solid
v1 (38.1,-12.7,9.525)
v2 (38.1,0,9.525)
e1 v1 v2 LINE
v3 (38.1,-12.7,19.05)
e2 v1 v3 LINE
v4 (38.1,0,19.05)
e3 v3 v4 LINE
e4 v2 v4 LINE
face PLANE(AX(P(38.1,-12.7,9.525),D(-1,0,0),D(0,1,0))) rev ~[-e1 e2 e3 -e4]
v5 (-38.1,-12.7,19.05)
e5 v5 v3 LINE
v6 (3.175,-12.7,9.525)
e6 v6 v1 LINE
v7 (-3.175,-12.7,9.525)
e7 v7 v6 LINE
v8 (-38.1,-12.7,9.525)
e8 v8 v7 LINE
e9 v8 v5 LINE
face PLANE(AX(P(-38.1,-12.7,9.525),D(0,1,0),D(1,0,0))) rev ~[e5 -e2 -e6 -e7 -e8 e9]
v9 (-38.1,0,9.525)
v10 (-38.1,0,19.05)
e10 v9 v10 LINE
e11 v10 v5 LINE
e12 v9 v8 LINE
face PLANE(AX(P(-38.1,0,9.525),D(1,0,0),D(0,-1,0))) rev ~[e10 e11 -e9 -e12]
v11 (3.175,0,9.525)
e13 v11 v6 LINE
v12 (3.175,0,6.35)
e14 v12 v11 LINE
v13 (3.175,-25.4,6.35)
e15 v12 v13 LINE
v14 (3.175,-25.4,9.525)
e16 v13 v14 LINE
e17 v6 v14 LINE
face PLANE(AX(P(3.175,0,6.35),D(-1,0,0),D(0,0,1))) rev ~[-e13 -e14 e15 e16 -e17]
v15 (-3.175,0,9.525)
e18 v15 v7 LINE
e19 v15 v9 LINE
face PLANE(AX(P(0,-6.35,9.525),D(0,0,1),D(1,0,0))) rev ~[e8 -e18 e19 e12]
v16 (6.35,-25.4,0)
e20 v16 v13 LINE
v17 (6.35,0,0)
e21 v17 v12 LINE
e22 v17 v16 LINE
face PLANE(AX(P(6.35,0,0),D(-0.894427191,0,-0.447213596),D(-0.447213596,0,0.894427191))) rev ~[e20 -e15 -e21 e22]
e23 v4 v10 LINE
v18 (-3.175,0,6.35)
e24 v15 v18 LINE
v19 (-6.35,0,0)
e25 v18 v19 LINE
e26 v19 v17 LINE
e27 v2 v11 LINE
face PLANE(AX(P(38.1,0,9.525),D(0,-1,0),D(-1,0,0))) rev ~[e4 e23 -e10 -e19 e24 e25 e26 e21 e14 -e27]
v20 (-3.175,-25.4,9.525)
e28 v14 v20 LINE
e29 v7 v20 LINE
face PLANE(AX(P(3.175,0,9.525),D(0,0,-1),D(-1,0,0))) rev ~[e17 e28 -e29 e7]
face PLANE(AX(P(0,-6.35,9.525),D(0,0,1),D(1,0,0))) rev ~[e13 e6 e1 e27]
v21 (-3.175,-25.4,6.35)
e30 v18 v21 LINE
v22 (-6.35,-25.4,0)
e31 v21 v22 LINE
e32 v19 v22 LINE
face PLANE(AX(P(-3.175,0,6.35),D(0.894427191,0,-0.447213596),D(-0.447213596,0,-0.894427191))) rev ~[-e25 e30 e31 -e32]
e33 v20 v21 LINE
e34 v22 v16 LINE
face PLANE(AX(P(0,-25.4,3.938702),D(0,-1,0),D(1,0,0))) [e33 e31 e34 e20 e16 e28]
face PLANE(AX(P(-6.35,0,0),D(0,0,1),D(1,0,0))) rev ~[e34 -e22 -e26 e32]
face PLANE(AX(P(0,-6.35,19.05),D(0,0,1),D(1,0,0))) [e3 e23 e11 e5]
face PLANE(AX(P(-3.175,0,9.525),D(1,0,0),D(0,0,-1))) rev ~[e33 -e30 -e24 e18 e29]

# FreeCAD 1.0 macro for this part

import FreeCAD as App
import Part
import Sketcher
from FreeCAD import Vector
Q = App.Units.Quantity

doc = App.newDocument("Part")
body = doc.addObject("PartDesign::Body", "Body")

sketch1 = body.newObject("Sketcher::SketchObject", "Sketch")
sketch1.AttachmentSupport = (doc.getObject("XZ_Plane"), [""])
sketch1.MapMode = "FlatFace"
sketch1.addGeometry(Part.LineSegment(Vector(-6.3, 0, 0), Vector(6.3, 0, 0)), False)
sketch1.addGeometry(Part.LineSegment(Vector(6.3, 0, 0), Vector(3.2, 6.3, 0)), False)
sketch1.addGeometry(Part.LineSegment(Vector(3.2, 6.3, 0), Vector(3.2, 9.5, 0)), False)
sketch1.addGeometry(Part.LineSegment(Vector(3.2, 9.5, 0), Vector(-3.2, 9.5, 0)), False)
sketch1.addGeometry(Part.LineSegment(Vector(-3.2, 9.5, 0), Vector(-3.2, 6.3, 0)), False)
sketch1.addGeometry(Part.LineSegment(Vector(-3.2, 6.3, 0), Vector(-6.3, 0, 0)), False)
sketch1.addConstraint(Sketcher.Constraint("Coincident", 0, 2, 1, 1))
sketch1.addConstraint(Sketcher.Constraint("Coincident", 1, 2, 2, 1))
sketch1.addConstraint(Sketcher.Constraint("Coincident", 2, 2, 3, 1))
sketch1.addConstraint(Sketcher.Constraint("Coincident", 3, 2, 4, 1))
sketch1.addConstraint(Sketcher.Constraint("Coincident", 4, 2, 5, 1))
sketch1.addConstraint(Sketcher.Constraint("Coincident", 5, 2, 0, 1))
sketch1.addConstraint(Sketcher.Constraint("Horizontal", 0))
sketch1.addConstraint(Sketcher.Constraint("Vertical", 2))
sketch1.addConstraint(Sketcher.Constraint("Horizontal", 3))
sketch1.addConstraint(Sketcher.Constraint("Vertical", 4))
sketch1.addConstraint(Sketcher.Constraint("Symmetric", 0, 2, 5, 2, -1, 1))
sketch1.addConstraint(Sketcher.Constraint("Symmetric", 1, 2, 4, 2, -2))
sketch1.addConstraint(Sketcher.Constraint("DistanceX", 0, 1, 0, 2, Q("0.5 in")))
sketch1.addConstraint(Sketcher.Constraint("DistanceX", 3, 2, 3, 1, Q("0.25 in")))
sketch1.addConstraint(Sketcher.Constraint("DistanceY", 2, 1, 2, 2, Q("0.125 in")))
sketch1.addConstraint(Sketcher.Constraint("DistanceY", -1, 1, 1, 2, Q("0.25 in")))
pad1 = body.newObject("PartDesign::Pad", "Pad")
pad1.Profile = sketch1
pad1.Length = Q("1 in")

sketch2 = body.newObject("Sketcher::SketchObject", "Sketch001")
sketch2.AttachmentSupport = (doc.getObject("XY_Plane"), [""])
sketch2.MapMode = "FlatFace"
sketch2.AttachmentOffset = App.Placement(Vector(0, 0, 0.375 * 25.4), App.Rotation())
sketch2.addGeometry(Part.LineSegment(Vector(38, 0, 0), Vector(-38, 0, 0)), False)
sketch2.addGeometry(Part.LineSegment(Vector(-38, 0, 0), Vector(-38, -13, 0)), False)
sketch2.addGeometry(Part.LineSegment(Vector(-38, -13, 0), Vector(38, -13, 0)), False)
sketch2.addGeometry(Part.LineSegment(Vector(38, -13, 0), Vector(38, 0, 0)), False)
sketch2.addConstraint(Sketcher.Constraint("Coincident", 0, 2, 1, 1))
sketch2.addConstraint(Sketcher.Constraint("Coincident", 1, 2, 2, 1))
sketch2.addConstraint(Sketcher.Constraint("Coincident", 2, 2, 3, 1))
sketch2.addConstraint(Sketcher.Constraint("Coincident", 3, 2, 0, 1))
sketch2.addConstraint(Sketcher.Constraint("Horizontal", 0))
sketch2.addConstraint(Sketcher.Constraint("Vertical", 1))
sketch2.addConstraint(Sketcher.Constraint("Horizontal", 2))
sketch2.addConstraint(Sketcher.Constraint("Vertical", 3))
sketch2.addConstraint(Sketcher.Constraint("Symmetric", 0, 2, 3, 2, -1, 1))
sketch2.addConstraint(Sketcher.Constraint("DistanceX", 0, 2, 0, 1, Q("3 in")))
sketch2.addConstraint(Sketcher.Constraint("DistanceY", 1, 2, 1, 1, Q("0.5 in")))
pad2 = body.newObject("PartDesign::Pad", "Pad001")
pad2.Profile = sketch2
pad2.Length = Q("0.375 in")

doc.recompute()
